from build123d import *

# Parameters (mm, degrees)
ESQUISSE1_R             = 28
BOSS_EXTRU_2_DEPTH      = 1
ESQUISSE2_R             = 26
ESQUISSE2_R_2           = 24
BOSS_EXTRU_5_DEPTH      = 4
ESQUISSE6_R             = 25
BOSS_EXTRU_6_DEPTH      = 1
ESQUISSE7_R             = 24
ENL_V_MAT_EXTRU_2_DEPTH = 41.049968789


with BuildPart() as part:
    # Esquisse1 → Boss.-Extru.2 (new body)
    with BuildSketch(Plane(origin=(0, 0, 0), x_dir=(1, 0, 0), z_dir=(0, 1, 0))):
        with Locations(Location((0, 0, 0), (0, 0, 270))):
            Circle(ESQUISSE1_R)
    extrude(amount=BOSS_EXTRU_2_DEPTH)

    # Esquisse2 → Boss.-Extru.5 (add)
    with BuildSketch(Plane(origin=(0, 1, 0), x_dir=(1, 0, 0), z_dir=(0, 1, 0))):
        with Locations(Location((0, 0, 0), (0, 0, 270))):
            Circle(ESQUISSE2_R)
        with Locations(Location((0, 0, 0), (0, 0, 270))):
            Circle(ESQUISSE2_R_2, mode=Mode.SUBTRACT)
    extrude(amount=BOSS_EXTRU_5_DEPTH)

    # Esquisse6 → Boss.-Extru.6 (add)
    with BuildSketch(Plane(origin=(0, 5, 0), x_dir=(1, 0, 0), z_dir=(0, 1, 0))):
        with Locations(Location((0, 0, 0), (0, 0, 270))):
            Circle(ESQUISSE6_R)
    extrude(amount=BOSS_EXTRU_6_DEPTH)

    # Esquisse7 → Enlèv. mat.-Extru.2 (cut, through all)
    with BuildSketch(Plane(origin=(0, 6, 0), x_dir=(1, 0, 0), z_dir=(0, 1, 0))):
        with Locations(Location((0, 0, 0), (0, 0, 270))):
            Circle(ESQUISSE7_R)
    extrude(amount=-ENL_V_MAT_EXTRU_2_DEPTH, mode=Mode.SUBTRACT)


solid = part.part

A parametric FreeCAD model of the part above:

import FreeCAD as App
import Part
import Sketcher

V = App.Vector

doc = App.newDocument("Part")
body = doc.addObject("PartDesign::Body", "Body")

# Sketch on XZ plane
sketch1 = doc.addObject("Sketcher::SketchObject", "Sketch")
body.addObject(sketch1)
sketch1.AttachmentSupport = (doc.XZ_Plane, [""])
sketch1.MapMode = "FlatFace"
sketch1.addGeometry(Part.Circle(V(0, 0, 0), V(0, 0, 1), 28), False)
sketch1.addConstraint([
    Sketcher.Constraint("Coincident", 0, 3, -1, 1),
    Sketcher.Constraint("Diameter", 0, 56.0),
])
pad1 = doc.addObject("PartDesign::Pad", "Pad")
body.addObject(pad1)
pad1.Profile = sketch1
pad1.Length = 1
pad1.Reversed = True

# Sketch on XZ plane
sketch2 = doc.addObject("Sketcher::SketchObject", "Sketch001")
body.addObject(sketch2)
sketch2.AttachmentSupport = (doc.XZ_Plane, [""])
sketch2.MapMode = "FlatFace"
sketch2.AttachmentOffset = App.Placement(V(0, 0, -1), App.Rotation())
sketch2.addGeometry([
    Part.Circle(V(0, 0, 0), V(0, 0, 1), 26),
    Part.Circle(V(0, 0, 0), V(0, 0, 1), 24),
], False)
sketch2.addConstraint([
    Sketcher.Constraint("Coincident", 0, 3, -1, 1),
    Sketcher.Constraint("Coincident", 1, 3, -1, 1),
    Sketcher.Constraint("Diameter", 0, 52.0),
    Sketcher.Constraint("Diameter", 1, 48.0),
])
pad2 = doc.addObject("PartDesign::Pad", "Pad001")
body.addObject(pad2)
pad2.Profile = sketch2
pad2.Length = 4
pad2.Reversed = True

# Sketch on XZ plane
sketch3 = doc.addObject("Sketcher::SketchObject", "Sketch002")
body.addObject(sketch3)
sketch3.AttachmentSupport = (doc.XZ_Plane, [""])
sketch3.MapMode = "FlatFace"
sketch3.AttachmentOffset = App.Placement(V(0, 0, -5), App.Rotation())
sketch3.addGeometry(Part.Circle(V(0, 0, 0), V(0, 0, 1), 25), False)
sketch3.addConstraint([
    Sketcher.Constraint("Coincident", 0, 3, -1, 1),
    Sketcher.Constraint("Diameter", 0, 50.0),
])
pad3 = doc.addObject("PartDesign::Pad", "Pad002")
body.addObject(pad3)
pad3.Profile = sketch3
pad3.Length = 1
pad3.Reversed = True

# Sketch on XZ plane
sketch4 = doc.addObject("Sketcher::SketchObject", "Sketch003")
body.addObject(sketch4)
sketch4.AttachmentSupport = (doc.XZ_Plane, [""])
sketch4.MapMode = "FlatFace"
sketch4.AttachmentOffset = App.Placement(V(0, 0, -6), App.Rotation())
sketch4.addGeometry(Part.Circle(V(0, 0, 0), V(0, 0, 1), 24), False)
sketch4.addConstraint([
    Sketcher.Constraint("Coincident", 0, 3, -1, 1),
    Sketcher.Constraint("Diameter", 0, 48.0),
])
pocket1 = doc.addObject("PartDesign::Pocket", "Pocket")
body.addObject(pocket1)
pocket1.Profile = sketch4
pocket1.Type = "ThroughAll"
pocket1.Reversed = True

doc.recompute()
